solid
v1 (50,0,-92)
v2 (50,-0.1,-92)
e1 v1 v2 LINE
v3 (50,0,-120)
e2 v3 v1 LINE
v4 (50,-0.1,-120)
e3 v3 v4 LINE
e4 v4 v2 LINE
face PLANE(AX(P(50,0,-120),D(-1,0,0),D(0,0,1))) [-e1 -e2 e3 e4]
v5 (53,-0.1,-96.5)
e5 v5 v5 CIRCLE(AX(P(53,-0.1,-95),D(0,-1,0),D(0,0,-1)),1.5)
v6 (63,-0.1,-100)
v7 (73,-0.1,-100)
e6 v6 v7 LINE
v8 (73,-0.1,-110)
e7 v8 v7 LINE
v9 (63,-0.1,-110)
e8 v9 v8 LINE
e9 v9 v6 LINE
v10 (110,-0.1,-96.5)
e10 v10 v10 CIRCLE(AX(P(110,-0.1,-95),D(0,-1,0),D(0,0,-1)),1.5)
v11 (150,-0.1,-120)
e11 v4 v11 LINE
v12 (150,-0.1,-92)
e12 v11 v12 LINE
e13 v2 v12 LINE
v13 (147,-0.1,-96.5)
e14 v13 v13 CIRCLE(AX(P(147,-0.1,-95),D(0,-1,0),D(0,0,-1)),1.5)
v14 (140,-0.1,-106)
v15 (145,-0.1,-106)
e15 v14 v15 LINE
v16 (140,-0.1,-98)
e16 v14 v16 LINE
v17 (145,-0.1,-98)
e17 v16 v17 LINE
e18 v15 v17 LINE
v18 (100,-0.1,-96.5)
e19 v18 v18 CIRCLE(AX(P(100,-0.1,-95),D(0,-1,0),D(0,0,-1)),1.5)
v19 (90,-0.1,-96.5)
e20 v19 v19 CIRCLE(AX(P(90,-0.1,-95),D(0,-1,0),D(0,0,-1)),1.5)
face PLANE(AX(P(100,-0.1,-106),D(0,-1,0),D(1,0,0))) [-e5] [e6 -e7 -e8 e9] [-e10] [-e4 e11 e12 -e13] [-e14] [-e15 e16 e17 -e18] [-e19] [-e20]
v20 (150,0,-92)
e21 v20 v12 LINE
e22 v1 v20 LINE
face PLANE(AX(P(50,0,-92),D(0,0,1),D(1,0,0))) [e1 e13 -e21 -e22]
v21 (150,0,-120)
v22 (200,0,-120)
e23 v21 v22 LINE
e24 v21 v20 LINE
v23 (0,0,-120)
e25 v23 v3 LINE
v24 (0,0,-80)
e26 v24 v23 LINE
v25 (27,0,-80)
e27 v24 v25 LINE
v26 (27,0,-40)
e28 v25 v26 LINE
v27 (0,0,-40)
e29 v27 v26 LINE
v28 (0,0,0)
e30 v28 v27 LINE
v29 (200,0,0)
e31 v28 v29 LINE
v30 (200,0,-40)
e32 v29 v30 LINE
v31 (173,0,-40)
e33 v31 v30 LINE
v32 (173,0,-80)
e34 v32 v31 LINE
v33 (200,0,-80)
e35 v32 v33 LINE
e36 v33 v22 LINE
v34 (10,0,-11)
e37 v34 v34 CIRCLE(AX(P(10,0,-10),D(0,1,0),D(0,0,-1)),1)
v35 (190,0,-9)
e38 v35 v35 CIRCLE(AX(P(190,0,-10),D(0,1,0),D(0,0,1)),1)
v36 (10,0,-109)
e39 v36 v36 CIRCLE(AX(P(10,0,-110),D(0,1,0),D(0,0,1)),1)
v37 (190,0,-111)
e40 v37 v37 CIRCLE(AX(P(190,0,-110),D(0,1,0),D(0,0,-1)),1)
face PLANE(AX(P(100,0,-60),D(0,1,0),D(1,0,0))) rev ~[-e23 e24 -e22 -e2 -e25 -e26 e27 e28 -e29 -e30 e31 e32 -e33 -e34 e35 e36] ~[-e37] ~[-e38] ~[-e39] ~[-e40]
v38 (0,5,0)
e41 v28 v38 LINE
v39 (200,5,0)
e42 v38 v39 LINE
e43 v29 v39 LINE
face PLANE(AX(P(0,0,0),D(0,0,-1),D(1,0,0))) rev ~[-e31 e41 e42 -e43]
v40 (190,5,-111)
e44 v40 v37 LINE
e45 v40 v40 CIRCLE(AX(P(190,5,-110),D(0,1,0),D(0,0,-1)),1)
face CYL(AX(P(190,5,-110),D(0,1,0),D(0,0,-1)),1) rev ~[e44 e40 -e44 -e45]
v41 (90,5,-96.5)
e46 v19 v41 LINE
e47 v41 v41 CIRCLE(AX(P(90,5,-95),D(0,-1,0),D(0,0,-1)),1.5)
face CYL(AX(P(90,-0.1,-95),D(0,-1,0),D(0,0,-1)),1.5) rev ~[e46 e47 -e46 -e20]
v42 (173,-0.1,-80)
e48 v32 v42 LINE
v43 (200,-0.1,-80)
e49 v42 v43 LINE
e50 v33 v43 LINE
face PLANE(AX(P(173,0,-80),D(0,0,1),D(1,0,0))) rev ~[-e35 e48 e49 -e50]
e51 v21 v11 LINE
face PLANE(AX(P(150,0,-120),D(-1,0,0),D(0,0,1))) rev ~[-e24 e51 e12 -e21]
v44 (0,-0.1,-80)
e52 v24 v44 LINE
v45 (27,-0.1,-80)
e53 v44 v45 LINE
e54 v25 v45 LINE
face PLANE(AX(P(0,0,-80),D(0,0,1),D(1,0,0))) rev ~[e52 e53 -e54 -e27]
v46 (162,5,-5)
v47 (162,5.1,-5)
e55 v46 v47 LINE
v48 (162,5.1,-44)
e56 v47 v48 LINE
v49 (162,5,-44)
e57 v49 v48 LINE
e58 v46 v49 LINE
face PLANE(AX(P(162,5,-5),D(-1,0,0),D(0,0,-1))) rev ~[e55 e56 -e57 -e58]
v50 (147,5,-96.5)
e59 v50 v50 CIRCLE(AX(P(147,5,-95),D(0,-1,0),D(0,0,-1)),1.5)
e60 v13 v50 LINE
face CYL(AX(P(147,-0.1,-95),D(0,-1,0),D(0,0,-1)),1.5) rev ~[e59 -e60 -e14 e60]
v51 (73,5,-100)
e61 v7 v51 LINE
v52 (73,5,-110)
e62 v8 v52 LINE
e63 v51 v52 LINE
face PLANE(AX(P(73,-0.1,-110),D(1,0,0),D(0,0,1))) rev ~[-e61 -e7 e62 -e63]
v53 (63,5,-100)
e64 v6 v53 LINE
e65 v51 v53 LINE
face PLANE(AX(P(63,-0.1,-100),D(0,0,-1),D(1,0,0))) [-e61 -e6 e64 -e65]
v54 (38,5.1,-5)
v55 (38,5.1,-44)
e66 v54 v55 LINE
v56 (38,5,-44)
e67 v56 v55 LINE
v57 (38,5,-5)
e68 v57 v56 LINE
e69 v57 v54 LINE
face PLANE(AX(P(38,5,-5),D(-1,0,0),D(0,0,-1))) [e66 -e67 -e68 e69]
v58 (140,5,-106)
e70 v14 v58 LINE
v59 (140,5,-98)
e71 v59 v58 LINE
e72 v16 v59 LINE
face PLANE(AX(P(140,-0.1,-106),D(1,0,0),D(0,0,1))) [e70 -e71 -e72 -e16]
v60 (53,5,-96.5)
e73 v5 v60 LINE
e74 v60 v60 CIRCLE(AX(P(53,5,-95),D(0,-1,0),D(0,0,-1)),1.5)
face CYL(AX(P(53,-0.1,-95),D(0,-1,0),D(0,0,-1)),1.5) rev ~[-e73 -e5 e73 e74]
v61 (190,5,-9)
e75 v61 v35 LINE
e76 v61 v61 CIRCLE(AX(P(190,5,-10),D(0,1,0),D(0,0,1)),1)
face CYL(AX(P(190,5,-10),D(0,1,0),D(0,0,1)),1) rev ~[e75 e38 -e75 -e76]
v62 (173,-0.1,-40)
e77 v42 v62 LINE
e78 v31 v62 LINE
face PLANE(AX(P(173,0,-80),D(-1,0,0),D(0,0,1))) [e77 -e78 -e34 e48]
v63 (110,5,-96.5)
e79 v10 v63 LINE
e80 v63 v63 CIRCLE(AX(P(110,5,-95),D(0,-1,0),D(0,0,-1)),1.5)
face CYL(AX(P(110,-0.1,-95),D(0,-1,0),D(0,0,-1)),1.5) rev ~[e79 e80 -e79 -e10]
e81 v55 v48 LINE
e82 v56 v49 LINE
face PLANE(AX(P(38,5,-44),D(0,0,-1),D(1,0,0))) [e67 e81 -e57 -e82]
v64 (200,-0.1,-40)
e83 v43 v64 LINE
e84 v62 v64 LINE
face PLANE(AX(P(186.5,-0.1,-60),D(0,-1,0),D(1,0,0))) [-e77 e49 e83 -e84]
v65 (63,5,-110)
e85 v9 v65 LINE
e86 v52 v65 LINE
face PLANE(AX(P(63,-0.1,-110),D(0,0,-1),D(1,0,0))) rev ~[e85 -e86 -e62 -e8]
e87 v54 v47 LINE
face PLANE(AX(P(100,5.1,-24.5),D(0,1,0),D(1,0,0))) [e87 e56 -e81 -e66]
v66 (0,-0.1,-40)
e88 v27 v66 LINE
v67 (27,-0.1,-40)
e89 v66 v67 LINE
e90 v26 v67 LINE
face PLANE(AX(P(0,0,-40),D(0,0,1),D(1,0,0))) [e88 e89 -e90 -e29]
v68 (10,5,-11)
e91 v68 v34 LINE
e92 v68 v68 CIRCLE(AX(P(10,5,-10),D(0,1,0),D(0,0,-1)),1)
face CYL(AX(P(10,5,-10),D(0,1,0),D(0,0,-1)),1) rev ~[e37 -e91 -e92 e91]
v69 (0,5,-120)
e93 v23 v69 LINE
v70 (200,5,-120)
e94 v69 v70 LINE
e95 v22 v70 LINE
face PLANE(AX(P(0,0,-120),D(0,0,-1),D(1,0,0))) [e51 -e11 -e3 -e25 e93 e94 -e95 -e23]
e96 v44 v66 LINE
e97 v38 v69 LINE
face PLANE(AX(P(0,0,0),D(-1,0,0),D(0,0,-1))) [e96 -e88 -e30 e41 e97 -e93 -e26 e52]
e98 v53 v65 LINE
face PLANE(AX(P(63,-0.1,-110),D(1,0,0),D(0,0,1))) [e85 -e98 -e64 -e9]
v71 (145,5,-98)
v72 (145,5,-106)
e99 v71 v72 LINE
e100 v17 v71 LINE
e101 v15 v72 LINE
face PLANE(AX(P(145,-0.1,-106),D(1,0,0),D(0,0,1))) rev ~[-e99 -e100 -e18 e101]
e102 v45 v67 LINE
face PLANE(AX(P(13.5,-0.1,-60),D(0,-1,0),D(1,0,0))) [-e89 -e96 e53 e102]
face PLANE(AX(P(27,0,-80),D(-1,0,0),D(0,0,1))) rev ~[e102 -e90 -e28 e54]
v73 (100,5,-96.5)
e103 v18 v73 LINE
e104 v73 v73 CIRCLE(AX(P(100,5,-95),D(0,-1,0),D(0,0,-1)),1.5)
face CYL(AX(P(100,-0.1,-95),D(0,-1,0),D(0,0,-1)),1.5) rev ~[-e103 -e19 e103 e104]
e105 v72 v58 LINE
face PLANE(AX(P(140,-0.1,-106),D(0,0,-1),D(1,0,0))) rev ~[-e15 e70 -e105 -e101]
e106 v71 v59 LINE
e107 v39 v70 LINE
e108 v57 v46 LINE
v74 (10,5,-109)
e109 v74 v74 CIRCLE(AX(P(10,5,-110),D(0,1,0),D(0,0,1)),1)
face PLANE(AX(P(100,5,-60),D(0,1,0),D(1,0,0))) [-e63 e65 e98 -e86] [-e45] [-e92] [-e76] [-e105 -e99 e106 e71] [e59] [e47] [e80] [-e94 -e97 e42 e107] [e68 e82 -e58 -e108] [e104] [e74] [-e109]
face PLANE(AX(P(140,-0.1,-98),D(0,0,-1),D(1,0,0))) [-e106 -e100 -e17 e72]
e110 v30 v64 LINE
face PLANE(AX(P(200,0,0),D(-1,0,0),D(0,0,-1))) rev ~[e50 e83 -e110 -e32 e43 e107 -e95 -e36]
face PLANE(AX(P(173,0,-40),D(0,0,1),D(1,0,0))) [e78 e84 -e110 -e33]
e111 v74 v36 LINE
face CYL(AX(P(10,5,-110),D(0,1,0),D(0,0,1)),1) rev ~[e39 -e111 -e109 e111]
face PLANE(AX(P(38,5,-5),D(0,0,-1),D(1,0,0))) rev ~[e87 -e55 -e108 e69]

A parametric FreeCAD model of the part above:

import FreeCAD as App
import Part
import Sketcher
from FreeCAD import Vector
Q = App.Units.Quantity


def add_polygon(sketch, points):
    """Adds a closed chain of lines whose ends are joined by coincident constraints."""
    first, n = sketch.GeometryCount, len(points)
    for a, b in zip(points, points[1:] + points[:1]):
        sketch.addGeometry(Part.LineSegment(App.Vector(*a, 0), App.Vector(*b, 0)), False)
    for i in range(n):
        sketch.addConstraint(Sketcher.Constraint("Coincident", first + i, 2, first + (i + 1) % n, 1))

doc = App.newDocument("Part")
body = doc.addObject("PartDesign::Body", "Body")

sketch1 = doc.addObject("Sketcher::SketchObject", "Sketch")
body.addObject(sketch1)
sketch1.AttachmentSupport = (doc.XZ_Plane, [""])
sketch1.MapMode = "FlatFace"
add_polygon(sketch1, [(0, -120), (0, 0), (200, 0), (200, -120)])
sketch1.addConstraint([
    Sketcher.Constraint("Vertical", 0),
    Sketcher.Constraint("Horizontal", 1),
    Sketcher.Constraint("Vertical", 2),
    Sketcher.Constraint("Horizontal", 3),
    Sketcher.Constraint("Coincident", 0, 2, -1, 1),
    Sketcher.Constraint("DistanceX", 1, 1, 1, 2, Q("200 mm")),
    Sketcher.Constraint("DistanceY", 0, 1, 0, 2, Q("120 mm")),
])
pad1 = doc.addObject("PartDesign::Pad", "Pad")
body.addObject(pad1)
pad1.Profile = sketch1
pad1.Length = 5
pad1.Reversed = True

sketch2 = doc.addObject("Sketcher::SketchObject", "Sketch001")
body.addObject(sketch2)
sketch2.AttachmentSupport = (doc.XZ_Plane, [""])
sketch2.MapMode = "FlatFace"
sketch2.AttachmentOffset = App.Placement(Vector(0, 0, -5), App.Rotation())
sketch2.addGeometry([
    Part.Circle(Vector(10, -110, 0), Vector(0, 0, 1), 1),
    Part.Circle(Vector(190, -110, 0), Vector(0, 0, 1), 1),
    Part.Circle(Vector(190, -10, 0), Vector(0, 0, 1), 1),
    Part.Circle(Vector(10, -10, 0), Vector(0, 0, 1), 1),
], False)
sketch2.addConstraint([
    Sketcher.Constraint("Equal", 0, 1),
    Sketcher.Constraint("Equal", 1, 2),
    Sketcher.Constraint("Equal", 2, 3),
    Sketcher.Constraint("Horizontal", 0, 3, 1, 3),
    Sketcher.Constraint("Horizontal", 2, 3, 3, 3),
    Sketcher.Constraint("Vertical", 1, 3, 2, 3),
    Sketcher.Constraint("Vertical", 0, 3, 3, 3),
    Sketcher.Constraint("Diameter", 0, Q("2 mm")),
    Sketcher.Constraint("DistanceX", -1, 1, 0, 3, Q("10 mm")),
    Sketcher.Constraint("DistanceY", 0, 3, -1, 1, Q("110 mm")),
    Sketcher.Constraint("DistanceX", -1, 1, 1, 3, Q("190 mm")),
    Sketcher.Constraint("DistanceY", 2, 3, -1, 1, Q("10 mm")),
])
pocket1 = doc.addObject("PartDesign::Pocket", "Pocket")
body.addObject(pocket1)
pocket1.Profile = sketch2
pocket1.Length = 10
pocket1.Reversed = True

sketch3 = doc.addObject("Sketcher::SketchObject", "Sketch002")
body.addObject(sketch3)
sketch3.AttachmentSupport = (doc.XZ_Plane, [""])
sketch3.MapMode = "FlatFace"
add_polygon(sketch3, [(0, -40), (0, -80), (27, -80), (27, -40)])
add_polygon(sketch3, [(173, -40), (173, -80), (200, -80), (200, -40)])
sketch3.addConstraint([
    Sketcher.Constraint("Vertical", 0),
    Sketcher.Constraint("Horizontal", 1),
    Sketcher.Constraint("Vertical", 2),
    Sketcher.Constraint("Horizontal", 3),
    Sketcher.Constraint("Vertical", 4),
    Sketcher.Constraint("Horizontal", 5),
    Sketcher.Constraint("Vertical", 6),
    Sketcher.Constraint("Horizontal", 7),
    Sketcher.Constraint("PointOnObject", 0, 2, -2),
    Sketcher.Constraint("Horizontal", 1, 2, 4, 2),
    Sketcher.Constraint("Horizontal", 3, 2, 6, 2),
    Sketcher.Constraint("Equal", 3, 5),
    Sketcher.Constraint("DistanceX", 1, 1, 1, 2, Q("27 mm")),
    Sketcher.Constraint("DistanceY", 0, 2, 0, 1, Q("40 mm")),
    Sketcher.Constraint("DistanceY", 0, 2, -1, 1, Q("80 mm")),
    Sketcher.Constraint("DistanceX", -1, 1, 4, 2, Q("173 mm")),
])
pad2 = doc.addObject("PartDesign::Pad", "Pad001")
body.addObject(pad2)
pad2.Profile = sketch3
pad2.Length = 0.1

sketch4 = doc.addObject("Sketcher::SketchObject", "Sketch003")
body.addObject(sketch4)
sketch4.AttachmentSupport = (doc.XZ_Plane, [""])
sketch4.MapMode = "FlatFace"
add_polygon(sketch4, [(50, -92), (50, -120), (150, -120), (150, -92)])
sketch4.addConstraint([
    Sketcher.Constraint("Vertical", 0),
    Sketcher.Constraint("Horizontal", 1),
    Sketcher.Constraint("Vertical", 2),
    Sketcher.Constraint("Horizontal", 3),
    Sketcher.Constraint("DistanceX", 1, 1, 1, 2, Q("100 mm")),
    Sketcher.Constraint("DistanceY", 0, 2, 0, 1, Q("28 mm")),
    Sketcher.Constraint("DistanceX", -1, 1, 0, 2, Q("50 mm")),
    Sketcher.Constraint("DistanceY", 0, 2, -1, 1, Q("120 mm")),
])
pad3 = doc.addObject("PartDesign::Pad", "Pad002")
body.addObject(pad3)
pad3.Profile = sketch4
pad3.Length = 0.1

sketch5 = doc.addObject("Sketcher::SketchObject", "Sketch004")
body.addObject(sketch5)
sketch5.AttachmentSupport = (doc.XZ_Plane, [""])
sketch5.MapMode = "FlatFace"
sketch5.AttachmentOffset = App.Placement(Vector(0, 0, 0.1), App.Rotation())
sketch5.addGeometry(Part.Circle(Vector(53, -95, 0), Vector(0, 0, 1), 1.5), False)
sketch5.addGeometry(Part.Circle(Vector(90, -95, 0), Vector(0, 0, 1), 1.5), False)
sketch5.addGeometry(Part.Circle(Vector(100, -95, 0), Vector(0, 0, 1), 1.5), False)
sketch5.addGeometry(Part.Circle(Vector(110, -95, 0), Vector(0, 0, 1), 1.5), False)
sketch5.addGeometry(Part.Circle(Vector(147, -95, 0), Vector(0, 0, 1), 1.5), False)
add_polygon(sketch5, [(140, -98), (140, -106), (145, -106), (145, -98)])
add_polygon(sketch5, [(63, -100), (63, -110), (73, -110), (73, -100)])
sketch5.addConstraint([
    Sketcher.Constraint("Vertical", 5),
    Sketcher.Constraint("Horizontal", 6),
    Sketcher.Constraint("Vertical", 7),
    Sketcher.Constraint("Horizontal", 8),
    Sketcher.Constraint("Vertical", 9),
    Sketcher.Constraint("Horizontal", 10),
    Sketcher.Constraint("Vertical", 11),
    Sketcher.Constraint("Horizontal", 12),
    Sketcher.Constraint("Equal", 0, 1),
    Sketcher.Constraint("Equal", 1, 2),
    Sketcher.Constraint("Equal", 2, 3),
    Sketcher.Constraint("Equal", 3, 4),
    Sketcher.Constraint("Horizontal", 0, 3, 1, 3),
    Sketcher.Constraint("Horizontal", 1, 3, 2, 3),
    Sketcher.Constraint("Horizontal", 2, 3, 3, 3),
    Sketcher.Constraint("Horizontal", 3, 3, 4, 3),
    Sketcher.Constraint("Equal", 12, 9),
    Sketcher.Constraint("Diameter", 0, Q("3 mm")),
    Sketcher.Constraint("DistanceX", 6, 1, 6, 2, Q("5 mm")),
    Sketcher.Constraint("DistanceX", 10, 1, 10, 2, Q("10 mm")),
    Sketcher.Constraint("DistanceY", 5, 2, 5, 1, Q("8 mm")),
    Sketcher.Constraint("DistanceX", -1, 1, 0, 3, Q("53 mm")),
    Sketcher.Constraint("DistanceY", 0, 3, -1, 1, Q("95 mm")),
    Sketcher.Constraint("DistanceX", -1, 1, 1, 3, Q("90 mm")),
    Sketcher.Constraint("DistanceX", -1, 1, 2, 3, Q("100 mm")),
    Sketcher.Constraint("DistanceX", -1, 1, 3, 3, Q("110 mm")),
    Sketcher.Constraint("DistanceX", -1, 1, 4, 3, Q("147 mm")),
    Sketcher.Constraint("DistanceX", -1, 1, 5, 2, Q("140 mm")),
    Sketcher.Constraint("DistanceY", 5, 2, -1, 1, Q("106 mm")),
    Sketcher.Constraint("DistanceX", -1, 1, 9, 2, Q("63 mm")),
    Sketcher.Constraint("DistanceY", 9, 2, -1, 1, Q("110 mm")),
])
pocket2 = doc.addObject("PartDesign::Pocket", "Pocket001")
body.addObject(pocket2)
pocket2.Profile = sketch5
pocket2.Type = "ThroughAll"

sketch6 = doc.addObject("Sketcher::SketchObject", "Sketch005")
body.addObject(sketch6)
sketch6.AttachmentSupport = (doc.XZ_Plane, [""])
sketch6.MapMode = "FlatFace"
sketch6.AttachmentOffset = App.Placement(Vector(0, 0, -5), App.Rotation())
add_polygon(sketch6, [(38, -44), (38, -5), (162, -5), (162, -44)])
sketch6.addConstraint([
    Sketcher.Constraint("Vertical", 0),
    Sketcher.Constraint("Horizontal", 1),
    Sketcher.Constraint("Vertical", 2),
    Sketcher.Constraint("Horizontal", 3),
    Sketcher.Constraint("DistanceX", 1, 1, 1, 2, Q("124 mm")),
    Sketcher.Constraint("DistanceY", 0, 1, 0, 2, Q("39 mm")),
    Sketcher.Constraint("DistanceX", -1, 1, 0, 2, Q("38 mm")),
    Sketcher.Constraint("DistanceY", 0, 2, -1, 1, Q("5 mm")),
])
pad4 = doc.addObject("PartDesign::Pad", "Pad003")
body.addObject(pad4)
pad4.Profile = sketch6
pad4.Length = 0.1
pad4.Reversed = True

doc.recompute()
